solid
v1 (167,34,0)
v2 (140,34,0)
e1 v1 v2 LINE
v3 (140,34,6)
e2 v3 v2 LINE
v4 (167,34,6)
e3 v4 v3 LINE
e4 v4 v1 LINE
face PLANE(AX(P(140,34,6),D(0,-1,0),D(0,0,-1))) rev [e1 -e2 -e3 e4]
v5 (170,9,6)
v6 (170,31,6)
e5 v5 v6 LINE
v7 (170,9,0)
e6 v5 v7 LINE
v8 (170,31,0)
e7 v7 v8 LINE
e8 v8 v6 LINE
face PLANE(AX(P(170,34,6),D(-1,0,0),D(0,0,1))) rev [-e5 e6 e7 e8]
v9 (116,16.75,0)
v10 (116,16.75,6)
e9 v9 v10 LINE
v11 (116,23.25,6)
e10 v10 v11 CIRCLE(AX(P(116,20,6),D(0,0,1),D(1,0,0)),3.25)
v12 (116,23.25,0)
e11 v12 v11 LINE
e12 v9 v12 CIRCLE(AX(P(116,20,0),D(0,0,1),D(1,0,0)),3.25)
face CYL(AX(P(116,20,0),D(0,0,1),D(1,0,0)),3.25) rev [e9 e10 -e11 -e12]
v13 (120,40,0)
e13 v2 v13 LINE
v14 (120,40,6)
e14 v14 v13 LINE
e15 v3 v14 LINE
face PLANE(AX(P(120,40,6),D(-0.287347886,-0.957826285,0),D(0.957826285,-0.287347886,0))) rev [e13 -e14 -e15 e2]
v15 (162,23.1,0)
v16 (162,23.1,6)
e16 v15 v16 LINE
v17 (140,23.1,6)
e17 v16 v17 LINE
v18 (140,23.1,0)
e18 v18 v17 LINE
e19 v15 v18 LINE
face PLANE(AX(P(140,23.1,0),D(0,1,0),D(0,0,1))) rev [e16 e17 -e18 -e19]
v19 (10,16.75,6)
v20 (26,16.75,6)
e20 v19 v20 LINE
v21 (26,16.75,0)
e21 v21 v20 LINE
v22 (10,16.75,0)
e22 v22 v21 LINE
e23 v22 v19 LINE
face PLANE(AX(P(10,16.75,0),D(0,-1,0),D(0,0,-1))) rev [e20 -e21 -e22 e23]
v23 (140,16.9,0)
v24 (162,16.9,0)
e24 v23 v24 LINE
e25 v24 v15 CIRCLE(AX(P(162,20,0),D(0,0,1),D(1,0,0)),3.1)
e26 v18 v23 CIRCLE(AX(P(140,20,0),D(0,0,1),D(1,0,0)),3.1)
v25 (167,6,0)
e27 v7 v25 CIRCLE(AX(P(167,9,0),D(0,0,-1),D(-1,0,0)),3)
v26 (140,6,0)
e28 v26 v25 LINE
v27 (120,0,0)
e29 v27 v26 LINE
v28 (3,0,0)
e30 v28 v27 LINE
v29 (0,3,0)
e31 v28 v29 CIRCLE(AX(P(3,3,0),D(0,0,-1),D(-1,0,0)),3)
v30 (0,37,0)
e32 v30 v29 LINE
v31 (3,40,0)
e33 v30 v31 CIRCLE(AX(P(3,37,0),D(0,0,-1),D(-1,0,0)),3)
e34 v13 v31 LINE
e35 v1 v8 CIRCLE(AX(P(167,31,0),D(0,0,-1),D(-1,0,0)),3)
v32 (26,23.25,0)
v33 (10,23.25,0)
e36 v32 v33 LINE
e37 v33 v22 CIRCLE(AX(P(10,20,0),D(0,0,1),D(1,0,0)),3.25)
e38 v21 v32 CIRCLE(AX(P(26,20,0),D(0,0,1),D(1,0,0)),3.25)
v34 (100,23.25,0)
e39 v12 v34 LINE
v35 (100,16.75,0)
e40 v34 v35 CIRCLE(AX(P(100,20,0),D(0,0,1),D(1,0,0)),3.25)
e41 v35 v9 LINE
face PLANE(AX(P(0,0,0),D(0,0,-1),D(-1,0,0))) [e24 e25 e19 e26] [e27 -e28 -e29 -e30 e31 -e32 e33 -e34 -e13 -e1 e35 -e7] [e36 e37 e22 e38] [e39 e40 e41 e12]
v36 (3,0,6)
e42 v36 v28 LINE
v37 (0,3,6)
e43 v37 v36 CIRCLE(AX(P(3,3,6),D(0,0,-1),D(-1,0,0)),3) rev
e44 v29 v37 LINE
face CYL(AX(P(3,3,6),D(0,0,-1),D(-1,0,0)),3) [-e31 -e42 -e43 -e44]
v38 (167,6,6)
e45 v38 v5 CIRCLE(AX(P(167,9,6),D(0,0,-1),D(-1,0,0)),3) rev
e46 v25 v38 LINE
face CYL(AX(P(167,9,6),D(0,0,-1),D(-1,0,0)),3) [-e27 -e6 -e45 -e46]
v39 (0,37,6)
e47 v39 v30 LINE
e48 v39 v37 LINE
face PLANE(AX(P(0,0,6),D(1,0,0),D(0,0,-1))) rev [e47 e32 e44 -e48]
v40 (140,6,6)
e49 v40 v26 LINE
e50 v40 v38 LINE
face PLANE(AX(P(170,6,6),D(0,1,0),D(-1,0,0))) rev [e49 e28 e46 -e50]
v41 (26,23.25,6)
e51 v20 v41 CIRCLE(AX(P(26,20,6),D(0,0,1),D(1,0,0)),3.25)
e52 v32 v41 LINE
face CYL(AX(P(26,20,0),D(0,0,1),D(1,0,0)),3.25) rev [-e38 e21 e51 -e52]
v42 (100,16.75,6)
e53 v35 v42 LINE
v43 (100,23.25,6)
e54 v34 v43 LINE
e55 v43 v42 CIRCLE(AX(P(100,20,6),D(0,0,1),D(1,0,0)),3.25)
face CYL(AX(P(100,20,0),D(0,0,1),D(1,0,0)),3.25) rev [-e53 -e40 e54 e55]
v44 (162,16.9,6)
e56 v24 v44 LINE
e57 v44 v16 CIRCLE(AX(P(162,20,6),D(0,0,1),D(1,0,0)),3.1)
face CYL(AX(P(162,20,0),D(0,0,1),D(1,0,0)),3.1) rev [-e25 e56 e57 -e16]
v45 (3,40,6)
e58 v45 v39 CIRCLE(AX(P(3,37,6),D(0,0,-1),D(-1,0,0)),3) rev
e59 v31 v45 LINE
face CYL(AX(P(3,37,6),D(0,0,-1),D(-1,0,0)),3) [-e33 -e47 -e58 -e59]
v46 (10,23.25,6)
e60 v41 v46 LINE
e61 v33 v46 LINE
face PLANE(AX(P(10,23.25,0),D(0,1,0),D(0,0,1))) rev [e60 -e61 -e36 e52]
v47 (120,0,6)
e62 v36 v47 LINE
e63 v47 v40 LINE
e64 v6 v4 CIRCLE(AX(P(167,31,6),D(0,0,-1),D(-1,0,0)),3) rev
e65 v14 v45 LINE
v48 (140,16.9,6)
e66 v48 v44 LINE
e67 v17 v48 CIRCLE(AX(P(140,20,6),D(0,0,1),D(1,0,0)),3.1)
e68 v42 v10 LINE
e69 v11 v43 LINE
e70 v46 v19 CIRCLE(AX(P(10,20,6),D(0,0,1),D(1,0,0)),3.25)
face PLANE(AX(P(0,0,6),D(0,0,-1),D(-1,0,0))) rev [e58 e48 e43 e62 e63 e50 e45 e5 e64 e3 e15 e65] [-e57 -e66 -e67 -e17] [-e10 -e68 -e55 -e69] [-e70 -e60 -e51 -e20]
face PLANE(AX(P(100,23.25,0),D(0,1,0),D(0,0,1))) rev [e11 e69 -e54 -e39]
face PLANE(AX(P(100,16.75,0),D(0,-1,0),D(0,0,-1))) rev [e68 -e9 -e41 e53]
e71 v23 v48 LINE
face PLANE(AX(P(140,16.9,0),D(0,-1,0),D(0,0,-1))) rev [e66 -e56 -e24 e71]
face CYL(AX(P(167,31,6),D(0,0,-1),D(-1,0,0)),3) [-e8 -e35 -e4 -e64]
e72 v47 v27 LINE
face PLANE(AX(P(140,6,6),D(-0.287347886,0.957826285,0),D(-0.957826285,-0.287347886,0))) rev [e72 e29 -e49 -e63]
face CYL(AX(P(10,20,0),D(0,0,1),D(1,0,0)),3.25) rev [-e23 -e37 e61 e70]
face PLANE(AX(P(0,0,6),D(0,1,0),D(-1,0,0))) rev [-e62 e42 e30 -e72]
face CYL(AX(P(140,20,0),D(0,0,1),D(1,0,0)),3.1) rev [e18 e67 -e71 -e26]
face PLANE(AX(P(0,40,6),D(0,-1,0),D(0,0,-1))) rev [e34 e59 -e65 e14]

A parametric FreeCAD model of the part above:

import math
import FreeCAD as App
import Part
import Sketcher

V = App.Vector
Q = App.Units.Quantity


def edges_at(feature, points):
    """Names of the edges that pass closest to the given points."""
    edges = feature.Shape.Edges
    near = lambda p: min(range(len(edges)), key=lambda i: edges[i].distToShape(Part.Vertex(*p))[0])
    return sorted({f"Edge{near(p) + 1}" for p in points})


def add_polygon(sketch, points):
    """Adds a closed chain of lines whose ends are joined by coincident constraints."""
    first, n = sketch.GeometryCount, len(points)
    for a, b in zip(points, points[1:] + points[:1]):
        sketch.addGeometry(Part.LineSegment(App.Vector(*a, 0), App.Vector(*b, 0)), False)
    for i in range(n):
        sketch.addConstraint(Sketcher.Constraint("Coincident", first + i, 2, first + (i + 1) % n, 1))

doc = App.newDocument("Part")
body = doc.addObject("PartDesign::Body", "Body")

# Sketch on XY plane
sketch1 = body.newObject("Sketcher::SketchObject", "Sketch")
sketch1.AttachmentSupport = (doc.getObject("XY_Plane"), [""])
sketch1.MapMode = "FlatFace"
add_polygon(sketch1, [(140, 34), (120, 40), (0, 40), (0, 0), (120, 0), (140, 6), (170, 6), (170, 34)])  # lines 0-7
sketch1.addConstraint([
    Sketcher.Constraint("Horizontal", 1),
    Sketcher.Constraint("Vertical", 2),
    Sketcher.Constraint("Horizontal", 3),
    Sketcher.Constraint("Horizontal", 5),
    Sketcher.Constraint("Vertical", 6),
    Sketcher.Constraint("Horizontal", 7),
    Sketcher.Constraint("Coincident", 2, 2, -1, 1),
    Sketcher.Constraint("Vertical", 0, 2, 3, 2),
    Sketcher.Constraint("Vertical", 4, 2, 7, 2),
    Sketcher.Constraint("Equal", 0, 4),
    Sketcher.Constraint("DistanceX", 1, 2, 1, 1, Q("120 mm")),
    Sketcher.Constraint("DistanceX", 5, 1, 5, 2, Q("30 mm")),
    Sketcher.Constraint("DistanceY", 2, 2, 2, 1, Q("40 mm")),
    Sketcher.Constraint("DistanceY", 6, 1, 6, 2, Q("28 mm")),
    Sketcher.Constraint("DistanceX", -1, 1, 4, 2, Q("140 mm")),
])
pad1 = body.newObject("PartDesign::Pad", "Pad")
pad1.Profile = sketch1
pad1.Length = 6

# Sketch on XY plane
sketch2 = body.newObject("Sketcher::SketchObject", "Sketch001")
sketch2.AttachmentSupport = (doc.getObject("XY_Plane"), [""])
sketch2.MapMode = "FlatFace"
sketch2.AttachmentOffset = App.Placement(V(0, 0, 6), App.Rotation())
sketch2.addGeometry([
    Part.LineSegment(V(26, 23.2, 0), V(10, 23.2, 0)),
    Part.ArcOfCircle(Part.Circle(V(10, 20, 0), V(0, 0, 1), 3.2), math.radians(90), math.radians(270)),
    Part.LineSegment(V(10, 16.8, 0), V(26, 16.8, 0)),
    Part.ArcOfCircle(Part.Circle(V(26, 20, 0), V(0, 0, 1), 3.2), math.radians(-90), math.radians(90)),
], False)
sketch2.addConstraint([
    Sketcher.Constraint("Tangent", 0, 2, 1, 1),
    Sketcher.Constraint("Tangent", 1, 2, 2, 1),
    Sketcher.Constraint("Tangent", 2, 2, 3, 1),
    Sketcher.Constraint("Tangent", 3, 2, 0, 1),
    Sketcher.Constraint("Horizontal", 0),
    Sketcher.Constraint("Horizontal", 2),
    Sketcher.Constraint("DistanceX", 0, 2, 0, 1, Q("16 mm")),
    Sketcher.Constraint("Radius", 1, Q("3.25 mm")),
    Sketcher.Constraint("DistanceX", -1, 1, 1, 3, Q("10 mm")),
    Sketcher.Constraint("DistanceY", -1, 1, 1, 3, Q("20 mm")),
])
pocket1 = body.newObject("PartDesign::Pocket", "Pocket")
pocket1.Profile = sketch2
pocket1.Length = 6

# Sketch on XY plane
sketch3 = body.newObject("Sketcher::SketchObject", "Sketch002")
sketch3.AttachmentSupport = (doc.getObject("XY_Plane"), [""])
sketch3.MapMode = "FlatFace"
sketch3.AttachmentOffset = App.Placement(V(0, 0, 6), App.Rotation())
sketch3.addGeometry([
    Part.LineSegment(V(162, 23.1, 0), V(140, 23.1, 0)),
    Part.ArcOfCircle(Part.Circle(V(140, 20, 0), V(0, 0, 1), 3.1), math.radians(90), math.radians(270)),
    Part.LineSegment(V(140, 16.9, 0), V(162, 16.9, 0)),
    Part.ArcOfCircle(Part.Circle(V(162, 20, 0), V(0, 0, 1), 3.1), math.radians(-90), math.radians(90)),
], False)
sketch3.addConstraint([
    Sketcher.Constraint("Tangent", 0, 2, 1, 1),
    Sketcher.Constraint("Tangent", 1, 2, 2, 1),
    Sketcher.Constraint("Tangent", 2, 2, 3, 1),
    Sketcher.Constraint("Tangent", 3, 2, 0, 1),
    Sketcher.Constraint("Horizontal", 0),
    Sketcher.Constraint("Horizontal", 2),
    Sketcher.Constraint("Radius", 1, Q("3.1 mm")),
    Sketcher.Constraint("DistanceX", 0, 2, 0, 1, Q("22 mm")),
    Sketcher.Constraint("DistanceX", -1, 1, 1, 3, Q("140 mm")),
    Sketcher.Constraint("DistanceY", -1, 1, 1, 3, Q("20 mm")),
])
pocket2 = body.newObject("PartDesign::Pocket", "Pocket001")
pocket2.Profile = sketch3
pocket2.Length = 6
doc.recompute()

linearpattern = body.newObject("PartDesign::LinearPattern", "LinearPattern")
linearpattern.Originals = [pocket1]
linearpattern.Direction = (doc.getObject("X_Axis"), [""])
linearpattern.Mode = "offset"
linearpattern.Offset = 90
linearpattern.Occurrences = 2
body.Tip = linearpattern
doc.recompute()

fillet = body.newObject("PartDesign::Fillet", "Fillet")
fillet.Base = (linearpattern, edges_at(linearpattern, [
    (0, 40, 3),
    (170, 34, 3),
    (170, 6, 3),
    (0, 0, 3),
]))
fillet.Radius = 3

doc.recompute()
